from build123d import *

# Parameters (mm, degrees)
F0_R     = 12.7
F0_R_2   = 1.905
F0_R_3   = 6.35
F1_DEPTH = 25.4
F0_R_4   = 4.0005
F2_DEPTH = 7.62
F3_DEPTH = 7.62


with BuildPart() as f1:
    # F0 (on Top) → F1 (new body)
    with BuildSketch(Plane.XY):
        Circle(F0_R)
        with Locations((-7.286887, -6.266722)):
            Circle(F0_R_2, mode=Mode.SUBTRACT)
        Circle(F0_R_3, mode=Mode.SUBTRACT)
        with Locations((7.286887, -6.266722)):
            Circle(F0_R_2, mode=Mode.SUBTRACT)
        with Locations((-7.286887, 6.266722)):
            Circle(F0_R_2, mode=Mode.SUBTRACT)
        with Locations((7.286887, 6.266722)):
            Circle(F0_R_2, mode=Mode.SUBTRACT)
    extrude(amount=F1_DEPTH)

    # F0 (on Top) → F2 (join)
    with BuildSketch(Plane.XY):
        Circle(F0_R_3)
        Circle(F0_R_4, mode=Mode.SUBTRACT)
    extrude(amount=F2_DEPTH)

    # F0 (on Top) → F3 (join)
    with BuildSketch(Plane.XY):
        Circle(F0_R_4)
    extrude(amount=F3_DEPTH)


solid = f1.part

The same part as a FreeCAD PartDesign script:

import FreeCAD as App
import Part
import Sketcher
from FreeCAD import Vector
Q = App.Units.Quantity

doc = App.newDocument("Part")
body = doc.addObject("PartDesign::Body", "Body")

# Sketch on XY plane
sketch1 = body.newObject("Sketcher::SketchObject", "Sketch")
sketch1.AttachmentSupport = (doc.getObject("XY_Plane"), [""])
sketch1.MapMode = "FlatFace"
sketch1.addGeometry([
    Part.Circle(Vector(0, 0, 0), Vector(0, 0, 1), 12.7),  # 0
    Part.Circle(Vector(-7.3, -6.3, 0), Vector(0, 0, 1), 1.9),  # 1
    Part.Circle(Vector(7.3, -6.3, 0), Vector(0, 0, 1), 1.9),  # 2
    Part.Circle(Vector(-7.3, 6.3, 0), Vector(0, 0, 1), 1.9),  # 3
    Part.Circle(Vector(0, 0, 0), Vector(0, 0, 1), 6.3),  # 4
    Part.Circle(Vector(7.3, 6.3, 0), Vector(0, 0, 1), 1.9),  # 5
], False)
sketch1.addConstraint([
    Sketcher.Constraint("Coincident", 0, 3, -1, 1),
    Sketcher.Constraint("Coincident", 4, 3, -1, 1),
    Sketcher.Constraint("Equal", 1, 2),
    Sketcher.Constraint("Equal", 2, 3),
    Sketcher.Constraint("Equal", 3, 5),
    Sketcher.Constraint("Symmetric", 2, 3, 3, 3, -1, 1),
    Sketcher.Constraint("Symmetric", 1, 3, 5, 3, -1, 1),
    Sketcher.Constraint("Symmetric", 1, 3, 2, 3, -2),
    Sketcher.Constraint("Diameter", 0, Q("1 in")),
    Sketcher.Constraint("Diameter", 4, Q("0.5 in")),
    Sketcher.Constraint("Diameter", 1, Q("0.15 in")),
    Sketcher.Constraint("DistanceY", 1, 3, -1, 1, 6.266722),
    Sketcher.Constraint("DistanceX", 1, 3, -1, 1, 7.286887),
])
pad1 = body.newObject("PartDesign::Pad", "Pad")
pad1.Profile = sketch1
pad1.Length = Q("1 in")

# Sketch on XY plane
sketch2 = body.newObject("Sketcher::SketchObject", "Sketch001")
sketch2.AttachmentSupport = (doc.getObject("XY_Plane"), [""])
sketch2.MapMode = "FlatFace"
sketch2.addGeometry([
    Part.Circle(Vector(0, 0, 0), Vector(0, 0, 1), 6.3),
    Part.Circle(Vector(0, 0, 0), Vector(0, 0, 1), 4),
], False)
sketch2.addConstraint([
    Sketcher.Constraint("Coincident", 0, 3, -1, 1),
    Sketcher.Constraint("Coincident", 1, 3, -1, 1),
    Sketcher.Constraint("Diameter", 0, Q("0.5 in")),
    Sketcher.Constraint("Diameter", 1, Q("0.315 in")),
])
pad2 = body.newObject("PartDesign::Pad", "Pad001")
pad2.Profile = sketch2
pad2.Length = Q("0.3 in")

# Sketch on XY plane
sketch3 = body.newObject("Sketcher::SketchObject", "Sketch002")
sketch3.AttachmentSupport = (doc.getObject("XY_Plane"), [""])
sketch3.MapMode = "FlatFace"
sketch3.addGeometry(Part.Circle(Vector(0, 0, 0), Vector(0, 0, 1), 4), False)
sketch3.addConstraint([
    Sketcher.Constraint("Coincident", 0, 3, -1, 1),
    Sketcher.Constraint("Diameter", 0, Q("0.315 in")),
])
pad3 = body.newObject("PartDesign::Pad", "Pad002")
pad3.Profile = sketch3
pad3.Length = Q("0.3 in")

doc.recompute()
